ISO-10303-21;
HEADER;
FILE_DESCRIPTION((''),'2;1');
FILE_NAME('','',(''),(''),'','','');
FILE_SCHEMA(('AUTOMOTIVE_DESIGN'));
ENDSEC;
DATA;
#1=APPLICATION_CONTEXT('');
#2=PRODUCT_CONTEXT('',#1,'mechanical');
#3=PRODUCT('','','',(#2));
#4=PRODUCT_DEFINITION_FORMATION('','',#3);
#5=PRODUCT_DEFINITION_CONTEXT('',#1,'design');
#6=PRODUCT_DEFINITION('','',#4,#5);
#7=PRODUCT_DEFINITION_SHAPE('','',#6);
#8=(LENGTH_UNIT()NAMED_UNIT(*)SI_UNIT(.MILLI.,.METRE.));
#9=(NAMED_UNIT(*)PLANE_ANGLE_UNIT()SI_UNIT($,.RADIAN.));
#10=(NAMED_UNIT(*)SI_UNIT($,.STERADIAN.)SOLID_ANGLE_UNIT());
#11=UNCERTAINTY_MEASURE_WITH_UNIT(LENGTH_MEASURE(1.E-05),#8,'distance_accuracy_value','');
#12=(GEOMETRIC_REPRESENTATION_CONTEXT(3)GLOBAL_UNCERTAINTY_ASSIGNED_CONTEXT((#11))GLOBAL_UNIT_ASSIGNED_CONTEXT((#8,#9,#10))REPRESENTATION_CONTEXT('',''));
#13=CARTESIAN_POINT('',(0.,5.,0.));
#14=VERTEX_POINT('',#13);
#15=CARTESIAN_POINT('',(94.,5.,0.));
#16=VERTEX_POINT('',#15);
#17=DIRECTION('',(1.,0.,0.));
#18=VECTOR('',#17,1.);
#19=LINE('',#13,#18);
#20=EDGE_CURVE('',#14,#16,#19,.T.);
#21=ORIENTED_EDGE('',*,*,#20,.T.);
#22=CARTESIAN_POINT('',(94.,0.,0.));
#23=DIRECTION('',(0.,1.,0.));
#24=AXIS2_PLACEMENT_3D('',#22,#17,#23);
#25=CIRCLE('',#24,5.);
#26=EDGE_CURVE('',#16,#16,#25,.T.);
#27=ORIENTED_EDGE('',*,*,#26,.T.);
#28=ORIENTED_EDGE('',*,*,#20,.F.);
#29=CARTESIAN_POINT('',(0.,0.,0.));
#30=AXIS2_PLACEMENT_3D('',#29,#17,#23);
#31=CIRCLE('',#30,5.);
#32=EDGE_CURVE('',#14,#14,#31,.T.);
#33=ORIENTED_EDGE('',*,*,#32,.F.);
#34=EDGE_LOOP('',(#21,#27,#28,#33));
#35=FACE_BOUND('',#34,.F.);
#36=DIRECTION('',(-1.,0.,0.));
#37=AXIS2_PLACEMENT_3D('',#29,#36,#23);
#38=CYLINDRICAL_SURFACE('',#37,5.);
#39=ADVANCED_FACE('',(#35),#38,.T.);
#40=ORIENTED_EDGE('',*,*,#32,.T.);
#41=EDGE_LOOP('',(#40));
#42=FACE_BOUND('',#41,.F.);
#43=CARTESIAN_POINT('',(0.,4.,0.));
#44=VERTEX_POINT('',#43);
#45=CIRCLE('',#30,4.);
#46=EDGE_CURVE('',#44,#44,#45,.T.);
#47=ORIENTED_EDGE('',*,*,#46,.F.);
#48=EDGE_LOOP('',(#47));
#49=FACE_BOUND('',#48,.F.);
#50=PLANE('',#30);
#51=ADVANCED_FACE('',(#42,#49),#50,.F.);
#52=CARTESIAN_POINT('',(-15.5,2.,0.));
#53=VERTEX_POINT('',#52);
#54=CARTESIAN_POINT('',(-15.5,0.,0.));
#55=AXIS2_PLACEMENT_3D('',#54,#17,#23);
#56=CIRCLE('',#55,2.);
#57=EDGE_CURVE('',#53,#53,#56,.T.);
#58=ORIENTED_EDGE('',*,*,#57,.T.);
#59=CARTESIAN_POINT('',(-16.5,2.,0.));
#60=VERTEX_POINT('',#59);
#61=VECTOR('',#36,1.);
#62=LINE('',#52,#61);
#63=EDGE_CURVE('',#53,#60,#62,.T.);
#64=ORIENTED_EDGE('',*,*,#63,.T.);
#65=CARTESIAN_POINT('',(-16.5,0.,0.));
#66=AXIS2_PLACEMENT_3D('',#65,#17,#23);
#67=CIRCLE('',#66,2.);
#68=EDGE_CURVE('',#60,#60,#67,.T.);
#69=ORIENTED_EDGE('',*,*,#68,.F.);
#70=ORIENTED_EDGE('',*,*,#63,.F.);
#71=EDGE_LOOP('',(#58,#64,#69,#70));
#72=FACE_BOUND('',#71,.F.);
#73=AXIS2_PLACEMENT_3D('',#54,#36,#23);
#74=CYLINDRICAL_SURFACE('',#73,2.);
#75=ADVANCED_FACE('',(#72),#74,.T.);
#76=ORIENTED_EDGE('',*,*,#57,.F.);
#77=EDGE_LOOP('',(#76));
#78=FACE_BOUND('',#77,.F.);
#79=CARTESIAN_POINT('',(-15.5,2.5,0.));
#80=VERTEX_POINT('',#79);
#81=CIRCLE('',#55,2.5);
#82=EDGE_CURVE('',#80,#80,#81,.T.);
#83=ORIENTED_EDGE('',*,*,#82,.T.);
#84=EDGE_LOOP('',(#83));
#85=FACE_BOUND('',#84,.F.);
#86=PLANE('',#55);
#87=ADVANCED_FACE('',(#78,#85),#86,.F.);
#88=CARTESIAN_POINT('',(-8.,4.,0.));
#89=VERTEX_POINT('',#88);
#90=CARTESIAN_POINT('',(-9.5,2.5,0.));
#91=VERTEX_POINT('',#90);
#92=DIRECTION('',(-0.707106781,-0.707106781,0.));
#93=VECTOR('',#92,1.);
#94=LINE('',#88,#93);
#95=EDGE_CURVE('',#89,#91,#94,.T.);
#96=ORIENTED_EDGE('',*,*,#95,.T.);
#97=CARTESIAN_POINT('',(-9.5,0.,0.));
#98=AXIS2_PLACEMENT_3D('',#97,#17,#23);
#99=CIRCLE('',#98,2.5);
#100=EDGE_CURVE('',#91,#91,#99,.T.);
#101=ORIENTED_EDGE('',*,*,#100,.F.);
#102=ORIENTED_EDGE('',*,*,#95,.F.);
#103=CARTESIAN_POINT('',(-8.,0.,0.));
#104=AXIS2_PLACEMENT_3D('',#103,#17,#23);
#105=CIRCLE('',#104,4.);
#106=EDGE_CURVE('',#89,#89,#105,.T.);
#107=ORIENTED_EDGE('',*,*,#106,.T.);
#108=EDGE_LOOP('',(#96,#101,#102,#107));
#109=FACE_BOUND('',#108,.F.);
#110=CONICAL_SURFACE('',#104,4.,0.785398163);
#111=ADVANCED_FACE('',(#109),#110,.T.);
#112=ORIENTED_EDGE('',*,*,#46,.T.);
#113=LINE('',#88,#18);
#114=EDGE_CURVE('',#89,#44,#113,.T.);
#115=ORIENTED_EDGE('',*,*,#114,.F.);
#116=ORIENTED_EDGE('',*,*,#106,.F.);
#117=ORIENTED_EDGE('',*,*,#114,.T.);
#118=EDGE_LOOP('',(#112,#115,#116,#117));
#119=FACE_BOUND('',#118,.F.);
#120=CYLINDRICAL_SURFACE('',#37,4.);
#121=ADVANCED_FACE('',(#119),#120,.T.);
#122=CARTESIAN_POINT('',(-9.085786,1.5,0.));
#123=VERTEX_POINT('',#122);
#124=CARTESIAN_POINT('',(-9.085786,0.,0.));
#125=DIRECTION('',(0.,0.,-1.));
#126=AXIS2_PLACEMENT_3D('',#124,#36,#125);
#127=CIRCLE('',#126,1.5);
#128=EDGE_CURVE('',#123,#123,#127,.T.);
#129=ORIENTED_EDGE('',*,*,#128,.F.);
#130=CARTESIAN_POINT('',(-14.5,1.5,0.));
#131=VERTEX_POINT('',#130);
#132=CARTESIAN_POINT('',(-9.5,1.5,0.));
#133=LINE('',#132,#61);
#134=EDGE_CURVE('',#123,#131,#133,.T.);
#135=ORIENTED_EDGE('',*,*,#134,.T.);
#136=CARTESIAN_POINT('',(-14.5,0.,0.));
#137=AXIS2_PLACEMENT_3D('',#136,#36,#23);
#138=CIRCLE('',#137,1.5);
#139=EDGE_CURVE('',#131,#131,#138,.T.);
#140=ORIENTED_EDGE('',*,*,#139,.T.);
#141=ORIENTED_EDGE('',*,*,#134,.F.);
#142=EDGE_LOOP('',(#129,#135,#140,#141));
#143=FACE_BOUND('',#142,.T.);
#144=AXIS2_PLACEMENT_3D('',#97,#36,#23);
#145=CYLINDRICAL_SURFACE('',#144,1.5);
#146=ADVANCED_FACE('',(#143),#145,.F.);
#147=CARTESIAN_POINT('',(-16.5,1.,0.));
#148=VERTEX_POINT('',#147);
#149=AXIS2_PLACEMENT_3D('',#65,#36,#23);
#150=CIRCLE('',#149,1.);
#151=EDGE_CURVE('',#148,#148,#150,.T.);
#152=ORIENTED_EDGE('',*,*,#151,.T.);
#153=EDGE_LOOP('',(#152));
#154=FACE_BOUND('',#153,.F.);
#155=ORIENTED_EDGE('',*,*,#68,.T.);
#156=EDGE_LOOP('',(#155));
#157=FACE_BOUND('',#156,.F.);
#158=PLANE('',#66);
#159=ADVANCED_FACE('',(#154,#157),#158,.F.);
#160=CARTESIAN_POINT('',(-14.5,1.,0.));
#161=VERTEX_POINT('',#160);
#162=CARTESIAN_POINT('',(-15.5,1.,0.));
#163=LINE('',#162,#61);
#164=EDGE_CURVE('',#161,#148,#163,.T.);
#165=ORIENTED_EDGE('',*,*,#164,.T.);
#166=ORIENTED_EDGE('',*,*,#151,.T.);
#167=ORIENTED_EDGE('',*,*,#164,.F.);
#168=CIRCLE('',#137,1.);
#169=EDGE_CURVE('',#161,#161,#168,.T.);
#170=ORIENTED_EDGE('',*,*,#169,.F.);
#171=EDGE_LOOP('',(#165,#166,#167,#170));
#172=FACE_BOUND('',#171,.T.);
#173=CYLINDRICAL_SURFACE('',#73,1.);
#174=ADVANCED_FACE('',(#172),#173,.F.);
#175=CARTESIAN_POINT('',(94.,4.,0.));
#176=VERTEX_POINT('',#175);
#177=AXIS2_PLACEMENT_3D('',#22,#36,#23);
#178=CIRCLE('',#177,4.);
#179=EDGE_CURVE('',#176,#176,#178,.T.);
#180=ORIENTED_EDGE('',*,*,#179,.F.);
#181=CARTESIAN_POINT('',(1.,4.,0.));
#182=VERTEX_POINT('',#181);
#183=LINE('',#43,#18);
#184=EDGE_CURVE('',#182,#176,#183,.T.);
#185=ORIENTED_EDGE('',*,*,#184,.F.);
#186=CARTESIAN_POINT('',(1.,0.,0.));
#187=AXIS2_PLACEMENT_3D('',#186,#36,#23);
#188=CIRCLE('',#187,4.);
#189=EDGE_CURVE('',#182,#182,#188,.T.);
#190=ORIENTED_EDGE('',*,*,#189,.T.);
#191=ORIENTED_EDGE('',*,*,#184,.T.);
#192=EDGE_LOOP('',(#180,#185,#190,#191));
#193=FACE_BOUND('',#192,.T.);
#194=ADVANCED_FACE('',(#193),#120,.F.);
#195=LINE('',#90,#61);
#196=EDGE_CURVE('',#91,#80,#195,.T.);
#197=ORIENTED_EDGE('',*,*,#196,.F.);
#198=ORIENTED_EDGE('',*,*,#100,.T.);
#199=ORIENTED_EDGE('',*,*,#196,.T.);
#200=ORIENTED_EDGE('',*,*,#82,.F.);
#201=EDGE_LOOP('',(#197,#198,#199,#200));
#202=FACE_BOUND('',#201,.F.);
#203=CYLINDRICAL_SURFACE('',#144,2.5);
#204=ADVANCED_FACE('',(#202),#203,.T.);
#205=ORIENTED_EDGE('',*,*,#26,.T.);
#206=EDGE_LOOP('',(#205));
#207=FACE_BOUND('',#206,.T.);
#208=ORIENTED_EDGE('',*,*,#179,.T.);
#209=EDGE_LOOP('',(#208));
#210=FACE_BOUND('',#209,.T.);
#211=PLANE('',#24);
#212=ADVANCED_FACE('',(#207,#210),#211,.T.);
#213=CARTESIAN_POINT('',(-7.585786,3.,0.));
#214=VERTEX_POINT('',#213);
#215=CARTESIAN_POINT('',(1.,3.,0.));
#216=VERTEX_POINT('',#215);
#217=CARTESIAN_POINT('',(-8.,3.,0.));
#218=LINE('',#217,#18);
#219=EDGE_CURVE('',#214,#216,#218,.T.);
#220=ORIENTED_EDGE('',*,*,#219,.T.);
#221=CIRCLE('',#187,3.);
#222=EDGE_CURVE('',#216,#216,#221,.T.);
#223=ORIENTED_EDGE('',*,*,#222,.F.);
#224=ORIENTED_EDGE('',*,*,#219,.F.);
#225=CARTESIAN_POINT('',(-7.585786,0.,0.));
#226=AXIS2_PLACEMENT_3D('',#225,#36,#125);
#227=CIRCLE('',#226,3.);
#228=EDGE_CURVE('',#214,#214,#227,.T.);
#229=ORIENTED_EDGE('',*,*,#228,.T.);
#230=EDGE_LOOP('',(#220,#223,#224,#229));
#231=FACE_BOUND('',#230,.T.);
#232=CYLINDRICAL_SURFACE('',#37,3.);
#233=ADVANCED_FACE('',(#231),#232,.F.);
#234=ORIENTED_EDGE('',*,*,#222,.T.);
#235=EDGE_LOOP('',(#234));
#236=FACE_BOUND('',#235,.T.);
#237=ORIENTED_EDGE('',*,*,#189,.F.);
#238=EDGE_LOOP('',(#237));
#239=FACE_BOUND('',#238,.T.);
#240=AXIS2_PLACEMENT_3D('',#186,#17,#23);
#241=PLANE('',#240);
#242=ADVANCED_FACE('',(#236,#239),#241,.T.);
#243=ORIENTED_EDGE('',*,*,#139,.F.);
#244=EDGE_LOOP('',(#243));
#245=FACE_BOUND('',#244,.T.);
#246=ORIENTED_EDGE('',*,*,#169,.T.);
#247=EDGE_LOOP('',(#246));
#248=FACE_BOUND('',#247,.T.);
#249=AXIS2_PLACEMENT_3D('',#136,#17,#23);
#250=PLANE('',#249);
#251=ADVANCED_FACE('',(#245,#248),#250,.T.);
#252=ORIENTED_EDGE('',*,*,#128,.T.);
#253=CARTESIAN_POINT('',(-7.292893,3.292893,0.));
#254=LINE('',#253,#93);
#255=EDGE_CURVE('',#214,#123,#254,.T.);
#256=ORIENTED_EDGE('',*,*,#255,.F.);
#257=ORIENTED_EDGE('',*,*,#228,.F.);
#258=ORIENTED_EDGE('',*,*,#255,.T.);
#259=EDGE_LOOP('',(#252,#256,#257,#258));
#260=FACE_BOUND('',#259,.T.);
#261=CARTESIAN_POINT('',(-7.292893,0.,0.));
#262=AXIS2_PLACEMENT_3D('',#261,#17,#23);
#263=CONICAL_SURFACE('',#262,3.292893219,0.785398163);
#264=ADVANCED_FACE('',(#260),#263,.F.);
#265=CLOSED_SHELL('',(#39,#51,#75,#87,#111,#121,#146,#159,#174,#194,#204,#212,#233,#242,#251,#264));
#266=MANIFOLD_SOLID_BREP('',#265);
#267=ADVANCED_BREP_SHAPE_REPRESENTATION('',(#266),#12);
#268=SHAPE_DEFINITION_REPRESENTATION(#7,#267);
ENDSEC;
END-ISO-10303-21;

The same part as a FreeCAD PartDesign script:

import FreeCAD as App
import Part
import Sketcher
from FreeCAD import Vector


def faces_at(feature, points):
    """Names of the faces that lie closest to the given points."""
    faces = feature.Shape.Faces
    near = lambda p: min(range(len(faces)), key=lambda i: faces[i].distToShape(Part.Vertex(*p))[0])
    return sorted({f"Face{near(p) + 1}" for p in points})

doc = App.newDocument("Part")
body = doc.addObject("PartDesign::Body", "Body")

sketch1 = body.newObject("Sketcher::SketchObject", "Sketch")
sketch1.AttachmentSupport = (doc.getObject("YZ_Plane"), [""])
sketch1.MapMode = "FlatFace"
sketch1.addGeometry(Part.Circle(Vector(0, 0, 0), Vector(0, 0, 1), 5), False)
sketch1.addConstraint([
    Sketcher.Constraint("Coincident", 0, 3, -1, 1),
    Sketcher.Constraint("Diameter", 0, 10.0),
])
pad1 = body.newObject("PartDesign::Pad", "Pad")
pad1.Profile = sketch1
pad1.Length = 94

sketch2 = body.newObject("Sketcher::SketchObject", "Sketch001")
sketch2.AttachmentSupport = (doc.getObject("XY_Plane"), [""])
sketch2.MapMode = "FlatFace"
sketch2.addGeometry([
    Part.LineSegment(Vector(-16.5, 0, 0), Vector(0, 0, 0)),
    Part.LineSegment(Vector(0, 0, 0), Vector(0, 4, 0)),
    Part.LineSegment(Vector(0, 4, 0), Vector(-8, 4, 0)),
    Part.LineSegment(Vector(-8, 4, 0), Vector(-9.5, 2.5, 0)),
    Part.LineSegment(Vector(-9.5, 2.5, 0), Vector(-15.5, 2.5, 0)),
    Part.LineSegment(Vector(-15.5, 2.5, 0), Vector(-15.5, 2, 0)),
    Part.LineSegment(Vector(-15.5, 2, 0), Vector(-16.5, 2, 0)),
    Part.LineSegment(Vector(-16.5, 2, 0), Vector(-16.5, 0, 0)),
], False)
sketch2.addConstraint([
    Sketcher.Constraint("Coincident", 0, 2, 1, 1),
    Sketcher.Constraint("Coincident", 1, 2, 2, 1),
    Sketcher.Constraint("Coincident", 2, 2, 3, 1),
    Sketcher.Constraint("Coincident", 3, 2, 4, 1),
    Sketcher.Constraint("Coincident", 4, 2, 5, 1),
    Sketcher.Constraint("Coincident", 5, 2, 6, 1),
    Sketcher.Constraint("Coincident", 6, 2, 7, 1),
    Sketcher.Constraint("Coincident", 7, 2, 0, 1),
    Sketcher.Constraint("Horizontal", 0),
    Sketcher.Constraint("Vertical", 1),
    Sketcher.Constraint("Horizontal", 2),
    Sketcher.Constraint("Horizontal", 4),
    Sketcher.Constraint("Vertical", 5),
    Sketcher.Constraint("Horizontal", 6),
    Sketcher.Constraint("Vertical", 7),
    Sketcher.Constraint("Coincident", 0, 2, -1, 1),
    Sketcher.Constraint("DistanceX", 4, 2, 4, 1, 6.0),
    Sketcher.Constraint("DistanceX", 6, 2, 6, 1, 1.0),
    Sketcher.Constraint("DistanceY", 1, 1, 1, 2, 4.0),
    Sketcher.Constraint("DistanceY", 7, 2, 7, 1, 2.0),
    Sketcher.Constraint("DistanceY", 5, 2, 5, 1, 0.5),
    Sketcher.Constraint("DistanceX", 3, 2, 2, 2, 1.5),
    Sketcher.Constraint("DistanceX", 2, 2, 2, 1, 8.0),
])
revolution = body.newObject("PartDesign::Revolution", "Revolution")
revolution.Profile = sketch2
revolution.ReferenceAxis = (sketch2, ["H_Axis"])
revolution.Angle = 360
doc.recompute()

thickness = body.newObject("PartDesign::Thickness", "Thickness")
thickness.Base = (revolution, faces_at(revolution, [(94, -0.591, 1.558), (-16.5, 0.343, 0.48)]))
thickness.Value = 1
thickness.Reversed = True
thickness.Join = "Intersection"

doc.recompute()
